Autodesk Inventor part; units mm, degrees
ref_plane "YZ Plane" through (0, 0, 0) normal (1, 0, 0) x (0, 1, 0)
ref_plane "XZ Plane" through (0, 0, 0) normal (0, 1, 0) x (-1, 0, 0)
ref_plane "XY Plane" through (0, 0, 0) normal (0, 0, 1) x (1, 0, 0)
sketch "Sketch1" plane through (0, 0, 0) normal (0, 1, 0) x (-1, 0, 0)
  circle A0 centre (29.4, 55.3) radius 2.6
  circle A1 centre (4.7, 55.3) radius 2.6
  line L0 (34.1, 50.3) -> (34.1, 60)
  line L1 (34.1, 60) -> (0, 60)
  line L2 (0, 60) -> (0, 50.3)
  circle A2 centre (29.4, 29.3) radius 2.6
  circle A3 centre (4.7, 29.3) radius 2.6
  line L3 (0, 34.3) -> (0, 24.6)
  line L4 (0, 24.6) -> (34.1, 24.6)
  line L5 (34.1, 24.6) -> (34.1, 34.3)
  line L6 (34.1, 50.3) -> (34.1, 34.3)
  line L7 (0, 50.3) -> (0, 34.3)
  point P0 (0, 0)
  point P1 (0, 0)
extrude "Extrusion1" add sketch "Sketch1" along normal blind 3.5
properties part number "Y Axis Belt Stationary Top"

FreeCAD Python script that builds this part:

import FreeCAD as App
import Part
import Sketcher
Q = App.Units.Quantity

doc = App.newDocument("Part")
body = doc.addObject("PartDesign::Body", "Body")

# Sketch on XZ plane
sketch1 = doc.addObject("Sketcher::SketchObject", "Sketch")
body.addObject(sketch1)
sketch1.AttachmentSupport = (doc.XZ_Plane, [""])
sketch1.MapMode = "FlatFace"
sketch1.addGeometry([
    Part.LineSegment(App.Vector(-34.1, 24.6, 0), App.Vector(-34.1, 60, 0)),  # 0
    Part.LineSegment(App.Vector(-34.1, 60, 0), App.Vector(0, 60, 0)),  # 1
    Part.LineSegment(App.Vector(0, 60, 0), App.Vector(0, 24.6, 0)),  # 2
    Part.LineSegment(App.Vector(0, 24.6, 0), App.Vector(-34.1, 24.6, 0)),  # 3
    Part.Circle(App.Vector(-4.7, 29.3, 0), App.Vector(0, 0, 1), 2.6),  # 4
    Part.Circle(App.Vector(-29.4, 29.3, 0), App.Vector(0, 0, 1), 2.6),  # 5
    Part.Circle(App.Vector(-4.7, 55.3, 0), App.Vector(0, 0, 1), 2.6),  # 6
    Part.Circle(App.Vector(-29.4, 55.3, 0), App.Vector(0, 0, 1), 2.6),  # 7
], False)
sketch1.addConstraint([
    Sketcher.Constraint("Coincident", 0, 2, 1, 1),
    Sketcher.Constraint("Coincident", 1, 2, 2, 1),
    Sketcher.Constraint("Coincident", 2, 2, 3, 1),
    Sketcher.Constraint("Coincident", 3, 2, 0, 1),
    Sketcher.Constraint("Vertical", 0),
    Sketcher.Constraint("Horizontal", 1),
    Sketcher.Constraint("Vertical", 2),
    Sketcher.Constraint("Horizontal", 3),
    Sketcher.Constraint("Equal", 4, 5),
    Sketcher.Constraint("Equal", 5, 6),
    Sketcher.Constraint("Equal", 6, 7),
    Sketcher.Constraint("PointOnObject", 1, 2, -2),
    Sketcher.Constraint("Horizontal", 4, 3, 5, 3),
    Sketcher.Constraint("Horizontal", 6, 3, 7, 3),
    Sketcher.Constraint("Vertical", 4, 3, 6, 3),
    Sketcher.Constraint("Vertical", 5, 3, 7, 3),
    Sketcher.Constraint("Diameter", 4, Q("5.2 mm")),
    Sketcher.Constraint("DistanceX", 1, 1, 1, 2, Q("34.1 mm")),
    Sketcher.Constraint("DistanceY", 0, 1, 0, 2, Q("35.4 mm")),
    Sketcher.Constraint("DistanceY", -1, 1, 0, 2, Q("60 mm")),
    Sketcher.Constraint("DistanceY", 4, 3, 6, 3, Q("26 mm")),
    Sketcher.Constraint("DistanceX", 4, 3, -1, 1, Q("4.7 mm")),
    Sketcher.Constraint("DistanceY", -1, 1, 4, 3, Q("29.3 mm")),
    Sketcher.Constraint("DistanceX", 5, 3, -1, 1, Q("29.4 mm")),
])
pad1 = doc.addObject("PartDesign::Pad", "Pad")
body.addObject(pad1)
pad1.Profile = sketch1
pad1.Length = 3.5
pad1.Reversed = True

doc.recompute()
